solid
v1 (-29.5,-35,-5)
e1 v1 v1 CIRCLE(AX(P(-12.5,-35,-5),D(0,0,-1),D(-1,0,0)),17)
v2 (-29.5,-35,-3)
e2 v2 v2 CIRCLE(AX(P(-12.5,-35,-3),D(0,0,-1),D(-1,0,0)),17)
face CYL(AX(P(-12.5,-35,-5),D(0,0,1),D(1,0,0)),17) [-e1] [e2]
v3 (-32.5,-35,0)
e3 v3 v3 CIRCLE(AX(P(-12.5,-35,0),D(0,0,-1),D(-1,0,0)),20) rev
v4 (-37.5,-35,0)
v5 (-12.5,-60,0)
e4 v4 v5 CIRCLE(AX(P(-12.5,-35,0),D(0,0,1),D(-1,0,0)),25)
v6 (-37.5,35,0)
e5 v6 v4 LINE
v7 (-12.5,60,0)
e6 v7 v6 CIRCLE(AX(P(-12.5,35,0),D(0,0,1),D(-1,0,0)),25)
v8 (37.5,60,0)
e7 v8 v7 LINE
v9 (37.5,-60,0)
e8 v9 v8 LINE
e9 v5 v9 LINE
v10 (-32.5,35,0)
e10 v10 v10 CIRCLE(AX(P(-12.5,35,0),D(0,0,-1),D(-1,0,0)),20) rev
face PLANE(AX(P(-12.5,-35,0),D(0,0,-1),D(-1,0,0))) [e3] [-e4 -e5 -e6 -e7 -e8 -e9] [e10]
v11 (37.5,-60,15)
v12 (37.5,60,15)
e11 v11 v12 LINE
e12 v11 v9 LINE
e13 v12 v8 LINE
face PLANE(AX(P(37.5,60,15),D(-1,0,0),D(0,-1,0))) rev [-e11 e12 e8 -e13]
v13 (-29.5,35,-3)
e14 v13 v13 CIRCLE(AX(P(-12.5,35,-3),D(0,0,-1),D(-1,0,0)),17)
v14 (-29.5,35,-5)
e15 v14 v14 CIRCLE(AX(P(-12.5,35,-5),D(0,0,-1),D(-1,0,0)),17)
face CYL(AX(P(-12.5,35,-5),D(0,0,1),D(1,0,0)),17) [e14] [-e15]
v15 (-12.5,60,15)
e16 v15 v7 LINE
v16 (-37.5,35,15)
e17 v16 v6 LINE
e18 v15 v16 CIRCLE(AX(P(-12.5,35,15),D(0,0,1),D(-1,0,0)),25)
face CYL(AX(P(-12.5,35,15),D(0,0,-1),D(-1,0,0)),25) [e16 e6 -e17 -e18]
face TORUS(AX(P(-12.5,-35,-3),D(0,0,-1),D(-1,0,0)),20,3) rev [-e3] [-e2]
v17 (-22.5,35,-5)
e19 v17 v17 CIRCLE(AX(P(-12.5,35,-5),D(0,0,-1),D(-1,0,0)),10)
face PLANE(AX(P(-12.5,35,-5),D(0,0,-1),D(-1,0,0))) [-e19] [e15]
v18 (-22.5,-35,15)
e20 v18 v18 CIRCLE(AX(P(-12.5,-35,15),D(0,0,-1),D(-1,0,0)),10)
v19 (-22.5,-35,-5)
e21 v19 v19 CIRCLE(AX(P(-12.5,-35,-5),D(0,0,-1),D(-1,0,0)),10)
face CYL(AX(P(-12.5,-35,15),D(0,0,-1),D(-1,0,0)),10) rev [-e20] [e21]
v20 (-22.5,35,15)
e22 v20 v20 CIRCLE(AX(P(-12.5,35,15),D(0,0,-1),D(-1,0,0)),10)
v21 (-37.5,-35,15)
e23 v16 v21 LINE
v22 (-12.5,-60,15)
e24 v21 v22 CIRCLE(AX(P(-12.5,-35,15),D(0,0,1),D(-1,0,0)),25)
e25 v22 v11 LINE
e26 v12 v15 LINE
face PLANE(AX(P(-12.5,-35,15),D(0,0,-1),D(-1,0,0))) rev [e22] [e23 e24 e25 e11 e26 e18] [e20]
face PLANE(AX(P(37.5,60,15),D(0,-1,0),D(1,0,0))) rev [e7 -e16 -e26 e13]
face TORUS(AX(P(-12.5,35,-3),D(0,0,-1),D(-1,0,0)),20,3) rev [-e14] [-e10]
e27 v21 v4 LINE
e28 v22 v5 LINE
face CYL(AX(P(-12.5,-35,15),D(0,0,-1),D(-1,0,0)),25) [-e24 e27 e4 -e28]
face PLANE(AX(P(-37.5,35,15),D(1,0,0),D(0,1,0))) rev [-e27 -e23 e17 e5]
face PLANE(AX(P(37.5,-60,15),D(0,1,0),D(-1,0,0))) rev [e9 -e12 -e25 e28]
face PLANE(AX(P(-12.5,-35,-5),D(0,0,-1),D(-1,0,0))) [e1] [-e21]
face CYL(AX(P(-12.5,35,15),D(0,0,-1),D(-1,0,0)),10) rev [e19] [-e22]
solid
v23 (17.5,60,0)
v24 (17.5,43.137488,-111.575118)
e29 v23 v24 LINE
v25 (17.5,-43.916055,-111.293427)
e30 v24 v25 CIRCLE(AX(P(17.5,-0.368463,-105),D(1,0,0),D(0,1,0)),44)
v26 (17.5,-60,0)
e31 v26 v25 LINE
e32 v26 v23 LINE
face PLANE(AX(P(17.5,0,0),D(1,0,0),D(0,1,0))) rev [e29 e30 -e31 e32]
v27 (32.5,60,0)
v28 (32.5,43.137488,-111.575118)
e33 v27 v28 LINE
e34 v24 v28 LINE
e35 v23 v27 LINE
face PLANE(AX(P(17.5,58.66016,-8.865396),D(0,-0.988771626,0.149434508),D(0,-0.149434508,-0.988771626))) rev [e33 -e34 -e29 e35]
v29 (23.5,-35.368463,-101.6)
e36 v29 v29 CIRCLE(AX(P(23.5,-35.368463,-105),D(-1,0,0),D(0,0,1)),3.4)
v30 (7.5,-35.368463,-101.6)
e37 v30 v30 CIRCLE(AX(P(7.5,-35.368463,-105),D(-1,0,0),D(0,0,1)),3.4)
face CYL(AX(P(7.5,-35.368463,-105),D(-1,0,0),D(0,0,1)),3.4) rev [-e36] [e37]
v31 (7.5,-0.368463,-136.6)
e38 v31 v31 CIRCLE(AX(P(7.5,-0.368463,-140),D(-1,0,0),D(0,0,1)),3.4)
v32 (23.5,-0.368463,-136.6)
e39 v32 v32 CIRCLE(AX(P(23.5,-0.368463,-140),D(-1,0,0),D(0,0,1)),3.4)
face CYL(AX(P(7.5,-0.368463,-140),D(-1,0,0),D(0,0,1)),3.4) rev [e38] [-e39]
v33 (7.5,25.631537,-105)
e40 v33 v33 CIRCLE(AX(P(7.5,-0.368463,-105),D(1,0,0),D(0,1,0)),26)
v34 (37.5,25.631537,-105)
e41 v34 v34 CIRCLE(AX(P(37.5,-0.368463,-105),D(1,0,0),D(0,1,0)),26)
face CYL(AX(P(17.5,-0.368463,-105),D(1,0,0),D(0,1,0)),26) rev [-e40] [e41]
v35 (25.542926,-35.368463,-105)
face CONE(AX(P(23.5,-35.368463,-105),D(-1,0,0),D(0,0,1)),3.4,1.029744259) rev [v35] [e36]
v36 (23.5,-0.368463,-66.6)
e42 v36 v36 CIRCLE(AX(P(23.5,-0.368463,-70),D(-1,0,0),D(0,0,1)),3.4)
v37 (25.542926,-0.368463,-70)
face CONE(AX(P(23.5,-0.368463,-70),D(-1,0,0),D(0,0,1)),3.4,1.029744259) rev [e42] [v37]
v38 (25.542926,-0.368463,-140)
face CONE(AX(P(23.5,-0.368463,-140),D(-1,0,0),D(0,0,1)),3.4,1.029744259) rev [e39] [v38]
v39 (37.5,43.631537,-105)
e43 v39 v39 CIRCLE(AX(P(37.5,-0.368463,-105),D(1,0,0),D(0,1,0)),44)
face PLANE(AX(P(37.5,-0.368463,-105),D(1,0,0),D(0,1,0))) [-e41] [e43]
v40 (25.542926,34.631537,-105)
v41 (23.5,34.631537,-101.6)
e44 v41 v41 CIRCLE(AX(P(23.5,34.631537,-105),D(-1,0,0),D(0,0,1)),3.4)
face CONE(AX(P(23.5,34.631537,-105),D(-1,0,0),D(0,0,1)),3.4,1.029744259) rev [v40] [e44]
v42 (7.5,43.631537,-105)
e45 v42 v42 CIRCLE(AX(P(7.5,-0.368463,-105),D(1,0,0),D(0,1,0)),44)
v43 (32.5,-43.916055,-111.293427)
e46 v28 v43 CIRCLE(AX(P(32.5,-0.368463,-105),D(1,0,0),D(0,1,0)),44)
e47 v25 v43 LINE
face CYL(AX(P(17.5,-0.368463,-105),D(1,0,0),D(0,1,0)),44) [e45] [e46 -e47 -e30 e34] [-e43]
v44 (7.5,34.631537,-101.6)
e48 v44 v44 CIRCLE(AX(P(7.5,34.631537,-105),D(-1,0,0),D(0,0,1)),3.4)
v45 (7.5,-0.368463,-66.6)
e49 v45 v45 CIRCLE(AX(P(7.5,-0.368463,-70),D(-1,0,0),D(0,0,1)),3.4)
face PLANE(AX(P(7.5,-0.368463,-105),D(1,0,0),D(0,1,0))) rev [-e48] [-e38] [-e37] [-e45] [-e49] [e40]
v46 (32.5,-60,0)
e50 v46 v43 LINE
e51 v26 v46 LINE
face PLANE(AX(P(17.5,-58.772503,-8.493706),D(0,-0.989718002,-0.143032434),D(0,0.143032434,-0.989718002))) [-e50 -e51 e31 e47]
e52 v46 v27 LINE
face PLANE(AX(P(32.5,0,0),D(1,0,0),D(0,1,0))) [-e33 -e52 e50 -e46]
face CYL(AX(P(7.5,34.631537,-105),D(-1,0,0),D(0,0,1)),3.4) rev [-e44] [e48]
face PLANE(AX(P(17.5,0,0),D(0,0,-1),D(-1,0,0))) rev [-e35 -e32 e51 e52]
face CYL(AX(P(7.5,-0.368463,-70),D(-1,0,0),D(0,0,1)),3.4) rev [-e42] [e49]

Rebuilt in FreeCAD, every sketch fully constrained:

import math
import FreeCAD as App
import Part
import Sketcher
from FreeCAD import Vector
Q = App.Units.Quantity


def edges_at(feature, points):
    """Names of the edges that pass closest to the given points."""
    edges = feature.Shape.Edges
    near = lambda p: min(range(len(edges)), key=lambda i: edges[i].distToShape(Part.Vertex(*p))[0])
    return sorted({f"Edge{near(p) + 1}" for p in points})

doc = App.newDocument("Part")
params = doc.addObject("Spreadsheet::Sheet", "Params")
for row, (alias, value) in enumerate([
    ("sketch1_radius", "25 mm"),
    ("sketch1_width", "50 mm"),
    ("sketch1_height", "70 mm"),
    ("pad1_length", "15 mm"),
    ("sketch2_diameter", "34 mm"),
    ("pad2_length", "5 mm"),
    ("sketch3_diameter", "20 mm"),
    ("fillet_radius", "3 mm"),
    ("sketch4_diameter", "52 mm"),
    ("sketch4_radius", "44 mm"),
    ("sketch4_width", "120 mm"),
    ("pad3_length", "15 mm"),
    ("sketch5_diameter", "88 mm"),
    ("sketch5_diameter2", "52 mm"),
    ("pad4_length", "5 mm"),
    ("pad4_length2", "25 mm"),
    ("sketch6_width", "16 mm"),
    ("sketch6_height", "3.4 mm"),
    ("groove_angle", "360 deg"),
    ("linearpattern_pitch", "49.497475 mm"),
    ("linearpattern2_pitch", "70 mm"),
    ("linearpattern3_pitch", "49.497475 mm"),
], start=1):
    params.set(f"A{row}", alias)
    params.set(f"B{row}", "=" + value)
    params.setAlias(f"B{row}", alias)

body = doc.addObject("PartDesign::Body", "Body")

# Sketch on XY plane
sketch1 = body.newObject("Sketcher::SketchObject", "Sketch")
sketch1.AttachmentSupport = (doc.getObject("XY_Plane"), [""])
sketch1.MapMode = "FlatFace"
sketch1.addGeometry(Part.LineSegment(Vector(37.5, 60, 0), Vector(-12.5, 60, 0)), False)
sketch1.addGeometry(Part.ArcOfCircle(Part.Circle(Vector(-12.5, 35, 0), Vector(0, 0, 1), 25), math.radians(90), math.radians(180)), False)
sketch1.addGeometry(Part.LineSegment(Vector(-37.5, 35, 0), Vector(-37.5, -35, 0)), False)
sketch1.addGeometry(Part.ArcOfCircle(Part.Circle(Vector(-12.5, -35, 0), Vector(0, 0, 1), 25), math.radians(180), math.radians(270)), False)
sketch1.addGeometry(Part.LineSegment(Vector(-12.5, -60, 0), Vector(37.5, -60, 0)), False)
sketch1.addGeometry(Part.LineSegment(Vector(37.5, -60, 0), Vector(37.5, 60, 0)), False)
sketch1.addConstraint(Sketcher.Constraint("Tangent", 0, 2, 1, 1))
sketch1.addConstraint(Sketcher.Constraint("Tangent", 1, 2, 2, 1))
sketch1.addConstraint(Sketcher.Constraint("Tangent", 2, 2, 3, 1))
sketch1.addConstraint(Sketcher.Constraint("Tangent", 3, 2, 4, 1))
sketch1.addConstraint(Sketcher.Constraint("Coincident", 4, 2, 5, 1))
sketch1.addConstraint(Sketcher.Constraint("Coincident", 5, 2, 0, 1))
sketch1.addConstraint(Sketcher.Constraint("Horizontal", 0))
sketch1.addConstraint(Sketcher.Constraint("Vertical", 2))
sketch1.addConstraint(Sketcher.Constraint("Horizontal", 4))
sketch1.addConstraint(Sketcher.Constraint("Vertical", 5))
sketch1.addConstraint(Sketcher.Constraint("Equal", 1, 3))
sketch1.addConstraint(Sketcher.Constraint("Radius", 1, 25.0))
sketch1.addConstraint(Sketcher.Constraint("DistanceX", 0, 2, 0, 1, 50.0))
sketch1.addConstraint(Sketcher.Constraint("DistanceY", 2, 2, 2, 1, 70.0))
sketch1.addConstraint(Sketcher.Constraint("DistanceY", -1, 1, 1, 3, 35.0))
sketch1.addConstraint(Sketcher.Constraint("DistanceX", 1, 3, -1, 1, 12.5))
sketch1.setExpression("Constraints[11]", "Params.sketch1_radius")
sketch1.setExpression("Constraints[12]", "Params.sketch1_width")
sketch1.setExpression("Constraints[13]", "Params.sketch1_height")
pad1 = body.newObject("PartDesign::Pad", "Pad")
pad1.Profile = sketch1
pad1.setExpression("Length", "Params.pad1_length")

# Sketch on XY plane
sketch2 = body.newObject("Sketcher::SketchObject", "Sketch001")
sketch2.AttachmentSupport = (doc.getObject("XY_Plane"), [""])
sketch2.MapMode = "FlatFace"
sketch2.addGeometry(Part.Circle(Vector(-12.5, 35, 0), Vector(0, 0, 1), 17), False)
sketch2.addGeometry(Part.Circle(Vector(-12.5, -35, 0), Vector(0, 0, 1), 17), False)
sketch2.addConstraint(Sketcher.Constraint("Equal", 0, 1))
sketch2.addConstraint(Sketcher.Constraint("Symmetric", 0, 3, 1, 3, -1))
sketch2.addConstraint(Sketcher.Constraint("Diameter", 0, 34.0))
sketch2.addConstraint(Sketcher.Constraint("DistanceY", -1, 1, 0, 3, 35.0))
sketch2.addConstraint(Sketcher.Constraint("DistanceX", 0, 3, -1, 1, 12.5))
sketch2.setExpression("Constraints[2]", "Params.sketch2_diameter")
pad2 = body.newObject("PartDesign::Pad", "Pad001")
pad2.Profile = sketch2
pad2.setExpression("Length", "Params.pad2_length")
pad2.Reversed = True

# Sketch on XY plane
sketch3 = body.newObject("Sketcher::SketchObject", "Sketch002")
sketch3.AttachmentSupport = (doc.getObject("XY_Plane"), [""])
sketch3.MapMode = "FlatFace"
sketch3.AttachmentOffset = App.Placement(Vector(0, 0, -5), App.Rotation())
sketch3.addGeometry(Part.Circle(Vector(-12.5, 35, 0), Vector(0, 0, 1), 10), False)
sketch3.addGeometry(Part.Circle(Vector(-12.5, -35, 0), Vector(0, 0, 1), 10), False)
sketch3.addConstraint(Sketcher.Constraint("Equal", 0, 1))
sketch3.addConstraint(Sketcher.Constraint("Symmetric", 0, 3, 1, 3, -1))
sketch3.addConstraint(Sketcher.Constraint("Diameter", 0, 20.0))
sketch3.addConstraint(Sketcher.Constraint("DistanceY", -1, 1, 0, 3, 35.0))
sketch3.addConstraint(Sketcher.Constraint("DistanceX", 0, 3, -1, 1, 12.5))
sketch3.setExpression("Constraints[2]", "Params.sketch3_diameter")
pocket1 = body.newObject("PartDesign::Pocket", "Pocket")
pocket1.Profile = sketch3
pocket1.Type = "ThroughAll"
pocket1.Reversed = True
doc.recompute()

fillet = body.newObject("PartDesign::Fillet", "Fillet")
fillet.Base = (pocket1, edges_at(pocket1, [(4.5, 35, 0), (4.5, -35, 0)]))
fillet.setExpression("Radius", "Params.fillet_radius")
body2 = doc.addObject("PartDesign::Body", "Body001")

# Sketch on YZ plane
sketch4 = body2.newObject("Sketcher::SketchObject", "Sketch003")
sketch4.AttachmentSupport = (doc.getObject("YZ_Plane001"), [""])
sketch4.MapMode = "FlatFace"
sketch4.AttachmentOffset = App.Placement(Vector(0, 0, 32.5), App.Rotation())
sketch4.addGeometry(Part.LineSegment(Vector(43.137488, -111.575118, 0), Vector(60, 0, 0)), False)
sketch4.addGeometry(Part.LineSegment(Vector(60, 0, 0), Vector(-60, 0, 0)), False)
sketch4.addGeometry(Part.LineSegment(Vector(-60, 0, 0), Vector(-43.916055, -111.293427, 0)), False)
sketch4.addGeometry(Part.ArcOfCircle(Part.Circle(Vector(-0.368463, -105, 0), Vector(0, 0, 1), 44), math.radians(-171.776642), math.radians(-8.594157)), False)
sketch4.addGeometry(Part.Circle(Vector(-0.368463, -105, 0), Vector(0, 0, 1), 26), False)
sketch4.addConstraint(Sketcher.Constraint("Coincident", 0, 2, 1, 1))
sketch4.addConstraint(Sketcher.Constraint("Coincident", 1, 2, 2, 1))
sketch4.addConstraint(Sketcher.Constraint("Tangent", 2, 2, 3, 1))
sketch4.addConstraint(Sketcher.Constraint("Tangent", 3, 2, 0, 1))
sketch4.addConstraint(Sketcher.Constraint("Horizontal", 1))
sketch4.addConstraint(Sketcher.Constraint("Coincident", 4, 3, 3, 3))
sketch4.addConstraint(Sketcher.Constraint("Symmetric", 0, 2, 1, 2, -1, 1))
sketch4.addConstraint(Sketcher.Constraint("Diameter", 4, 52.0))
sketch4.addConstraint(Sketcher.Constraint("Radius", 3, 44.0))
sketch4.addConstraint(Sketcher.Constraint("DistanceX", 1, 2, 1, 1, 120.0))
sketch4.addConstraint(Sketcher.Constraint("DistanceY", 3, 3, -1, 1, 105.0))
sketch4.addConstraint(Sketcher.Constraint("DistanceX", -1, 1, 3, 2, 43.137488))
sketch4.setExpression("Constraints[7]", "Params.sketch4_diameter")
sketch4.setExpression("Constraints[8]", "Params.sketch4_radius")
sketch4.setExpression("Constraints[9]", "Params.sketch4_width")
pad3 = body2.newObject("PartDesign::Pad", "Pad002")
pad3.Profile = sketch4
pad3.setExpression("Length", "Params.pad3_length")
pad3.Reversed = True

# Sketch on YZ plane
sketch5 = body2.newObject("Sketcher::SketchObject", "Sketch004")
sketch5.AttachmentSupport = (doc.getObject("YZ_Plane001"), [""])
sketch5.MapMode = "FlatFace"
sketch5.AttachmentOffset = App.Placement(Vector(0, 0, 32.5), App.Rotation())
sketch5.addGeometry(Part.Circle(Vector(-0.368463, -105, 0), Vector(0, 0, 1), 44), False)
sketch5.addGeometry(Part.Circle(Vector(-0.368463, -105, 0), Vector(0, 0, 1), 26), False)
sketch5.addConstraint(Sketcher.Constraint("Coincident", 1, 3, 0, 3))
sketch5.addConstraint(Sketcher.Constraint("Diameter", 0, 88.0))
sketch5.addConstraint(Sketcher.Constraint("Diameter", 1, 52.0))
sketch5.addConstraint(Sketcher.Constraint("DistanceY", 0, 3, -1, 1, 105.0))
sketch5.addConstraint(Sketcher.Constraint("DistanceX", 0, 3, -1, 1, 0.368463))
sketch5.setExpression("Constraints[1]", "Params.sketch5_diameter")
sketch5.setExpression("Constraints[2]", "Params.sketch5_diameter2")
pad4 = body2.newObject("PartDesign::Pad", "Pad003")
pad4.Profile = sketch5
pad4.Type = "TwoLengths"
pad4.setExpression("Length", "Params.pad4_length")
pad4.setExpression("Length2", "Params.pad4_length2")

# Sketch on XZ plane
sketch6 = body2.newObject("Sketcher::SketchObject", "Sketch005")
sketch6.AttachmentSupport = (doc.getObject("XZ_Plane001"), [""])
sketch6.MapMode = "FlatFace"
sketch6.AttachmentOffset = App.Placement(Vector(0, 0, 0.368463), App.Rotation())
sketch6.addGeometry(Part.LineSegment(Vector(25.542926, -140, 0), Vector(7.5, -140, 0)), False)
sketch6.addGeometry(Part.LineSegment(Vector(7.5, -140, 0), Vector(7.5, -136.6, 0)), False)
sketch6.addGeometry(Part.LineSegment(Vector(7.5, -136.6, 0), Vector(23.5, -136.6, 0)), False)
sketch6.addGeometry(Part.LineSegment(Vector(23.5, -136.6, 0), Vector(25.542926, -140, 0)), False)
sketch6.addGeometry(Part.LineSegment(Vector(7.5, -140, 0), Vector(25.542926, -140, 0)), True)  # axis
sketch6.addConstraint(Sketcher.Constraint("Coincident", 0, 2, 1, 1))
sketch6.addConstraint(Sketcher.Constraint("Coincident", 1, 2, 2, 1))
sketch6.addConstraint(Sketcher.Constraint("Coincident", 2, 2, 3, 1))
sketch6.addConstraint(Sketcher.Constraint("Coincident", 3, 2, 0, 1))
sketch6.addConstraint(Sketcher.Constraint("Horizontal", 0))
sketch6.addConstraint(Sketcher.Constraint("Vertical", 1))
sketch6.addConstraint(Sketcher.Constraint("Horizontal", 2))
sketch6.addConstraint(Sketcher.Constraint("Horizontal", 4))
sketch6.addConstraint(Sketcher.Constraint("Coincident", 4, 1, 0, 2))
sketch6.addConstraint(Sketcher.Constraint("Equal", 0, 4))
sketch6.addConstraint(Sketcher.Constraint("DistanceX", 2, 1, 2, 2, 16.0))
sketch6.addConstraint(Sketcher.Constraint("Angle", 3, Q("-59 deg")))
sketch6.addConstraint(Sketcher.Constraint("DistanceY", 1, 1, 1, 2, 3.4))
sketch6.addConstraint(Sketcher.Constraint("DistanceY", 0, 2, -1, 1, 140.0))
sketch6.addConstraint(Sketcher.Constraint("DistanceX", -1, 1, 0, 2, 7.5))
sketch6.setExpression("Constraints[10]", "Params.sketch6_width")
sketch6.setExpression("Constraints[12]", "Params.sketch6_height")
groove = body2.newObject("PartDesign::Groove", "Groove")
groove.Profile = sketch6
groove.ReferenceAxis = (sketch6, ["Axis0"])
groove.setExpression("Angle", "Params.groove_angle")
doc.recompute()

datumline = body2.newObject("PartDesign::Line", "DatumLine")
datumline.Placement = App.Placement(Vector(0, 0, 0), App.Rotation(Vector(0, 0, 1), Vector(0, 0.707106781, 0.707106781)))
linearpattern = body2.newObject("PartDesign::LinearPattern", "LinearPattern")
linearpattern.Originals = [groove]
linearpattern.Direction = (datumline, [""])
linearpattern.Mode = "offset"
linearpattern.setExpression("Offset", "Params.linearpattern_pitch")
linearpattern.Occurrences = 2
body2.Tip = linearpattern
doc.recompute()

linearpattern2 = body2.newObject("PartDesign::LinearPattern", "LinearPattern001")
linearpattern2.Originals = [groove]
linearpattern2.Direction = (doc.getObject("Z_Axis001"), [""])
linearpattern2.Mode = "offset"
linearpattern2.setExpression("Offset", "Params.linearpattern2_pitch")
linearpattern2.Occurrences = 2
body2.Tip = linearpattern2
doc.recompute()

datumline2 = body2.newObject("PartDesign::Line", "DatumLine001")
datumline2.Placement = App.Placement(Vector(0, 0, 0), App.Rotation(Vector(0, 0, 1), Vector(0, -0.707106781, 0.707106781)))
linearpattern3 = body2.newObject("PartDesign::LinearPattern", "LinearPattern002")
linearpattern3.Originals = [groove]
linearpattern3.Direction = (datumline2, [""])
linearpattern3.Mode = "offset"
linearpattern3.setExpression("Offset", "Params.linearpattern3_pitch")
linearpattern3.Occurrences = 2
body2.Tip = linearpattern3

doc.recompute()
